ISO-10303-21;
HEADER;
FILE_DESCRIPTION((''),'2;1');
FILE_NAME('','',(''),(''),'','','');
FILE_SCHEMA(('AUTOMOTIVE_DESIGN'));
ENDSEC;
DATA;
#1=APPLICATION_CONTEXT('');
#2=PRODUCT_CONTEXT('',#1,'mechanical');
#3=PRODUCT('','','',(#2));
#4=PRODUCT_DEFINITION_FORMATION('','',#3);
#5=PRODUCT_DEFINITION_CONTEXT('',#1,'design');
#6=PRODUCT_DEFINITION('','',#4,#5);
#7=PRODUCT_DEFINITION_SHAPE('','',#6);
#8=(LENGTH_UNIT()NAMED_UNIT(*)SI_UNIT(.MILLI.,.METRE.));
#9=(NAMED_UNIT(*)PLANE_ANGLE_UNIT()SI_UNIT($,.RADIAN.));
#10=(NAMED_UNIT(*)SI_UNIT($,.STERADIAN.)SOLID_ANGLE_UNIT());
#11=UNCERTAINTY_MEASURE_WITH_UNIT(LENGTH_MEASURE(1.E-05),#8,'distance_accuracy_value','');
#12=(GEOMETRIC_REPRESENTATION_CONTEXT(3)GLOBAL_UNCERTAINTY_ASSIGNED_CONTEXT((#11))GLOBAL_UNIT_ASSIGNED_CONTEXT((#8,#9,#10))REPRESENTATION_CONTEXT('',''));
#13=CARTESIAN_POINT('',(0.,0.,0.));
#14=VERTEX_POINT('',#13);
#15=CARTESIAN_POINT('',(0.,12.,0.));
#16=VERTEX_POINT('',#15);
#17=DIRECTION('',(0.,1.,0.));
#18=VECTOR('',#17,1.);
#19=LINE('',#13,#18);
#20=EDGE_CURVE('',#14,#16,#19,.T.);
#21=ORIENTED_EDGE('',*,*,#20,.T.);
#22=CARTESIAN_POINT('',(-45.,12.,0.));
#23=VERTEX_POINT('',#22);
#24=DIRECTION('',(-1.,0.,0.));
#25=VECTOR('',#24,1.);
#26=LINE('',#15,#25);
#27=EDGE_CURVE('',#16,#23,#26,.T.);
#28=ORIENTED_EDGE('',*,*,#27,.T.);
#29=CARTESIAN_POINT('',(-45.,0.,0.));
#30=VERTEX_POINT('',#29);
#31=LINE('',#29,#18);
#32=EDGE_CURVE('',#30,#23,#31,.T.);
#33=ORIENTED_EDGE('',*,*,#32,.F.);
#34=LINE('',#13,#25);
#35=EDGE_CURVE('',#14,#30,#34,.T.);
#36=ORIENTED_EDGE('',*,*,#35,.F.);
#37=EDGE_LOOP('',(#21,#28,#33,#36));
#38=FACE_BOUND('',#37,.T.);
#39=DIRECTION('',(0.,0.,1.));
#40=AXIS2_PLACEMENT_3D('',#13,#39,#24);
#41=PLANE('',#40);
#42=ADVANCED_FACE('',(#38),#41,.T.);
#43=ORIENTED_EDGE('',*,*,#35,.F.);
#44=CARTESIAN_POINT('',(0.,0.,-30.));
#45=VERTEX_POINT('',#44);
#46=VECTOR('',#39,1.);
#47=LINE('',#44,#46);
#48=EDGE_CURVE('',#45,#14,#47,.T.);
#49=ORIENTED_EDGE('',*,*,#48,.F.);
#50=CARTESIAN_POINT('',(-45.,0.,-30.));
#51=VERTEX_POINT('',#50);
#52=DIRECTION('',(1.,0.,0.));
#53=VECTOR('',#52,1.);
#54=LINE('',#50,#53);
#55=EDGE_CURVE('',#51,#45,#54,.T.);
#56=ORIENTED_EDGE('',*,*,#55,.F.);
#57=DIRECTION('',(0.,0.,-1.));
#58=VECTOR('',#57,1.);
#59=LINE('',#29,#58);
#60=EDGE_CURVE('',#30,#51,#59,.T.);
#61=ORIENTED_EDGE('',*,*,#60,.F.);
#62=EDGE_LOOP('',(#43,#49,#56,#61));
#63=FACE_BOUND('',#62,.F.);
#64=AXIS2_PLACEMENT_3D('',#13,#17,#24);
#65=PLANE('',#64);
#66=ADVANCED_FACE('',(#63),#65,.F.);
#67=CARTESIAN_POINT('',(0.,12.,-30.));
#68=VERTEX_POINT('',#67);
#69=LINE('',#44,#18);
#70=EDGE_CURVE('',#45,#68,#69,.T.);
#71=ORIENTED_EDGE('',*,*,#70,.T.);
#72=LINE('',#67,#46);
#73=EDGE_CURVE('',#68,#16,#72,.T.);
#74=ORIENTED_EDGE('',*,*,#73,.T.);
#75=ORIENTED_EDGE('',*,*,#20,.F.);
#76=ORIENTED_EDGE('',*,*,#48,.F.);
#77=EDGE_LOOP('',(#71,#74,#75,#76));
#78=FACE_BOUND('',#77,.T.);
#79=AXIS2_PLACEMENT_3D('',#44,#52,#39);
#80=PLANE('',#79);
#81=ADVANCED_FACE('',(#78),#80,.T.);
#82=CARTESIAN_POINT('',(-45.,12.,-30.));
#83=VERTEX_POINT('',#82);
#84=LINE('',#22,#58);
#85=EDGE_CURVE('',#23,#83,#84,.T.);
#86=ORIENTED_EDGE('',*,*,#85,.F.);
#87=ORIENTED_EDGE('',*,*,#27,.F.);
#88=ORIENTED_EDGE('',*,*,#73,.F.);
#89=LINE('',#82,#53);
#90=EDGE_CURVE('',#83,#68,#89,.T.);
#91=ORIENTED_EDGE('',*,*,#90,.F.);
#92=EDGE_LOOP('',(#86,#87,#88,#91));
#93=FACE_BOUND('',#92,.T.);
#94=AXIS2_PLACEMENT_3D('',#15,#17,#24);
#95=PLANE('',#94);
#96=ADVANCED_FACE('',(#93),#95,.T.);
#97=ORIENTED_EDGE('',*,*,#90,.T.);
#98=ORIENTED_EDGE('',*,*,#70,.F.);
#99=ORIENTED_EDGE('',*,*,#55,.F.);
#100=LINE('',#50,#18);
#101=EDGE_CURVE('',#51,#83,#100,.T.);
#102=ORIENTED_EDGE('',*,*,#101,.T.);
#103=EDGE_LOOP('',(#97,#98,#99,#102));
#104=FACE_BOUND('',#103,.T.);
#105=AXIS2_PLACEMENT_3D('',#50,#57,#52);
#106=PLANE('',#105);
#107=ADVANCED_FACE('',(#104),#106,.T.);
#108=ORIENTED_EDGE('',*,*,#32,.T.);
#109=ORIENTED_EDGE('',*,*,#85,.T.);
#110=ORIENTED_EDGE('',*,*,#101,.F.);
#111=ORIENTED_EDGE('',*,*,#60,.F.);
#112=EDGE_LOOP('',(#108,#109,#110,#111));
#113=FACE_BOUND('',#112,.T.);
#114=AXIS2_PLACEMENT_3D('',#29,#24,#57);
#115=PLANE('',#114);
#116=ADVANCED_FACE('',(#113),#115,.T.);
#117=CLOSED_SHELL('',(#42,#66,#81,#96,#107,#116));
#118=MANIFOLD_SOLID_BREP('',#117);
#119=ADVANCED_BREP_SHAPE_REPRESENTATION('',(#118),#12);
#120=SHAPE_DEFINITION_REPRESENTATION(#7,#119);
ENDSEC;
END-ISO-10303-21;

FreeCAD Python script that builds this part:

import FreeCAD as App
import Part
import Sketcher

V = App.Vector

doc = App.newDocument("Part")
body = doc.addObject("PartDesign::Body", "Body")

# Sketch on XZ plane
sketch1 = doc.addObject("Sketcher::SketchObject", "Sketch")
body.addObject(sketch1)
sketch1.AttachmentSupport = (doc.XZ_Plane, [""])
sketch1.MapMode = "FlatFace"
sketch1.addGeometry([
    Part.LineSegment(V(-45, 0, 0), V(0, 0, 0)),
    Part.LineSegment(V(0, 0, 0), V(0, -30, 0)),
    Part.LineSegment(V(0, -30, 0), V(-45, -30, 0)),
    Part.LineSegment(V(-45, -30, 0), V(-45, 0, 0)),
], False)
sketch1.addConstraint([
    Sketcher.Constraint("Coincident", 0, 2, 1, 1),
    Sketcher.Constraint("Coincident", 1, 2, 2, 1),
    Sketcher.Constraint("Coincident", 2, 2, 3, 1),
    Sketcher.Constraint("Coincident", 3, 2, 0, 1),
    Sketcher.Constraint("Horizontal", 0),
    Sketcher.Constraint("Vertical", 1),
    Sketcher.Constraint("Horizontal", 2),
    Sketcher.Constraint("Vertical", 3),
    Sketcher.Constraint("Coincident", 0, 2, -1, 1),
    Sketcher.Constraint("DistanceX", 0, 1, 0, 2, 45.0),
    Sketcher.Constraint("DistanceY", 1, 2, 1, 1, 30.0),
])
pad1 = doc.addObject("PartDesign::Pad", "Pad")
body.addObject(pad1)
pad1.Profile = sketch1
pad1.Length = 12
pad1.Reversed = True

doc.recompute()
